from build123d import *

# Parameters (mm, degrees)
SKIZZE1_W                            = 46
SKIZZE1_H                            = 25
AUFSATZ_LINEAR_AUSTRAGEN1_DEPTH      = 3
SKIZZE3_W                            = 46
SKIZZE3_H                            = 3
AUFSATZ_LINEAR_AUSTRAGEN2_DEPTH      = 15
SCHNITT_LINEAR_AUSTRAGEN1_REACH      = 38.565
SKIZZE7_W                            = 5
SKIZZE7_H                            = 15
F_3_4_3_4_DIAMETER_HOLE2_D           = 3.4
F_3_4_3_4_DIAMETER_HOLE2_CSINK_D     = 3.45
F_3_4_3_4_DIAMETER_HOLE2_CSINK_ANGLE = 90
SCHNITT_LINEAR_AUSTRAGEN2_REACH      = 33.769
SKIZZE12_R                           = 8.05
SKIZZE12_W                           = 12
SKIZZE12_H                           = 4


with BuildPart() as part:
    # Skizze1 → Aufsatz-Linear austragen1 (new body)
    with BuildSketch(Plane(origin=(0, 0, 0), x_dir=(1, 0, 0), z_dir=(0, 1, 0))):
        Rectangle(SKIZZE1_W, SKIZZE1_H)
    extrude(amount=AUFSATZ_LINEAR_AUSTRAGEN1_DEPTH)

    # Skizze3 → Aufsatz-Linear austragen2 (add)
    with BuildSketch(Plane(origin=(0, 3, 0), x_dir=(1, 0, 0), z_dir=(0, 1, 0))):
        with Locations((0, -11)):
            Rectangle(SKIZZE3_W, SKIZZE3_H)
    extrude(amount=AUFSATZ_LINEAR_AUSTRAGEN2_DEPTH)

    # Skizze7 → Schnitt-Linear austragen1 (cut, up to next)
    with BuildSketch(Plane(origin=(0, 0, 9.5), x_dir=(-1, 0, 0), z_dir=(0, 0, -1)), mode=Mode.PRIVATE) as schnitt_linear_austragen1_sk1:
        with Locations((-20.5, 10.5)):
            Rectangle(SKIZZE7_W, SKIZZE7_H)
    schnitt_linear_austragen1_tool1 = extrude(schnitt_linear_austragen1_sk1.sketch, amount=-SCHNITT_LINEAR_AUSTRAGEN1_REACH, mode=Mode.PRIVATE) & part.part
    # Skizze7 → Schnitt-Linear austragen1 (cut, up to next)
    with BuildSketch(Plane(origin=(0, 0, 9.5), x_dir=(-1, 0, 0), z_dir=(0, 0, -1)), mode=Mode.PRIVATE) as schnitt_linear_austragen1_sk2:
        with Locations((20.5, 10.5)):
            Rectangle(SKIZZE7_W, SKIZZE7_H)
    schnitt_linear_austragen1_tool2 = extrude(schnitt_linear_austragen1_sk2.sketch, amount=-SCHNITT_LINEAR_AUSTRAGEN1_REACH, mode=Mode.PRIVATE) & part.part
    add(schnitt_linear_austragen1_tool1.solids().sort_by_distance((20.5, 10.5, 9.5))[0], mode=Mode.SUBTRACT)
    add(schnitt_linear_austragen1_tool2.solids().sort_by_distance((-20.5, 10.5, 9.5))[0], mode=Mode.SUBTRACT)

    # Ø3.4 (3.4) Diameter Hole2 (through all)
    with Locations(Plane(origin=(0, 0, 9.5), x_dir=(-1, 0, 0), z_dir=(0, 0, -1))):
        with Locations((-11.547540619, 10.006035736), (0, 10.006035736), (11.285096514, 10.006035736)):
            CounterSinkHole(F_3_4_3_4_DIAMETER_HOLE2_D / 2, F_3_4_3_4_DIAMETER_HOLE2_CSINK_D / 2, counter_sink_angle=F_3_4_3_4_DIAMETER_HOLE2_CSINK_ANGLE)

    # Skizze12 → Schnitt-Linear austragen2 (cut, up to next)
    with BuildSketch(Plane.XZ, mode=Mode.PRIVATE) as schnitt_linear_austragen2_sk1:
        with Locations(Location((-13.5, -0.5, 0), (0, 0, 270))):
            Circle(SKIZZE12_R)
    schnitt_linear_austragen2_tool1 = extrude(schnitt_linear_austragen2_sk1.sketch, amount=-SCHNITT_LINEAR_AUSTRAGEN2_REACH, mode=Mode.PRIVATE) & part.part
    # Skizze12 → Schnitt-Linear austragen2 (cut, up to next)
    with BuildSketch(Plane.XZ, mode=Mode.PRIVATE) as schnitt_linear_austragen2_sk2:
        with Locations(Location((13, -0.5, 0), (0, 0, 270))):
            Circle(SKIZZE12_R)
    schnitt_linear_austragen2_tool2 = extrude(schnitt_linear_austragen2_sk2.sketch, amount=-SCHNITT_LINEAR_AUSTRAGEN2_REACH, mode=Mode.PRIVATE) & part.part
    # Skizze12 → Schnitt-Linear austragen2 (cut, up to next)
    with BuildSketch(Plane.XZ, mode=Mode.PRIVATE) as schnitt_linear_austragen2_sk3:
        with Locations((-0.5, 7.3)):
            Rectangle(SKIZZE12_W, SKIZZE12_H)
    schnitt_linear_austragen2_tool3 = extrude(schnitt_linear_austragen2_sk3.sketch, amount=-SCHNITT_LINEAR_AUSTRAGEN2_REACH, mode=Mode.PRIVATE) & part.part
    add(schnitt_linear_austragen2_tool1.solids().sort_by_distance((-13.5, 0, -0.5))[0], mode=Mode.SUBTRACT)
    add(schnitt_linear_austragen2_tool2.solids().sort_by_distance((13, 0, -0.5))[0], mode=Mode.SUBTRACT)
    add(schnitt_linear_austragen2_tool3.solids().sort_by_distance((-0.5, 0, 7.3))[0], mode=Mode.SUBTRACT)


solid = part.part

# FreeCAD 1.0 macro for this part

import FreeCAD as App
import Part
import Sketcher
from FreeCAD import Vector
Q = App.Units.Quantity

doc = App.newDocument("Part")
body = doc.addObject("PartDesign::Body", "Body")

sketch1 = body.newObject("Sketcher::SketchObject", "Sketch")
sketch1.AttachmentSupport = (doc.getObject("XZ_Plane"), [""])
sketch1.MapMode = "FlatFace"
sketch1.addGeometry(Part.LineSegment(Vector(-23, -12, 0), Vector(-23, 12, 0)), False)
sketch1.addGeometry(Part.LineSegment(Vector(-23, 12, 0), Vector(23, 12, 0)), False)
sketch1.addGeometry(Part.LineSegment(Vector(23, 12, 0), Vector(23, -12, 0)), False)
sketch1.addGeometry(Part.LineSegment(Vector(23, -12, 0), Vector(-23, -12, 0)), False)
sketch1.addConstraint(Sketcher.Constraint("Coincident", 0, 2, 1, 1))
sketch1.addConstraint(Sketcher.Constraint("Coincident", 1, 2, 2, 1))
sketch1.addConstraint(Sketcher.Constraint("Coincident", 2, 2, 3, 1))
sketch1.addConstraint(Sketcher.Constraint("Coincident", 3, 2, 0, 1))
sketch1.addConstraint(Sketcher.Constraint("Vertical", 0))
sketch1.addConstraint(Sketcher.Constraint("Horizontal", 1))
sketch1.addConstraint(Sketcher.Constraint("Vertical", 2))
sketch1.addConstraint(Sketcher.Constraint("Horizontal", 3))
sketch1.addConstraint(Sketcher.Constraint("Symmetric", 0, 2, 2, 2, -1, 1))
sketch1.addConstraint(Sketcher.Constraint("DistanceX", 1, 1, 1, 2, Q("46 mm")))
sketch1.addConstraint(Sketcher.Constraint("DistanceY", 0, 1, 0, 2, Q("25 mm")))
pad1 = body.newObject("PartDesign::Pad", "Pad")
pad1.Profile = sketch1
pad1.Length = 3
pad1.Reversed = True

sketch2 = body.newObject("Sketcher::SketchObject", "Sketch001")
sketch2.AttachmentSupport = (doc.getObject("XZ_Plane"), [""])
sketch2.MapMode = "FlatFace"
sketch2.AttachmentOffset = App.Placement(Vector(0, 0, -3), App.Rotation())
sketch2.addGeometry(Part.LineSegment(Vector(-23, 9.5, 0), Vector(-23, 12.5, 0)), False)
sketch2.addGeometry(Part.LineSegment(Vector(-23, 12.5, 0), Vector(23, 12.5, 0)), False)
sketch2.addGeometry(Part.LineSegment(Vector(23, 12.5, 0), Vector(23, 9.5, 0)), False)
sketch2.addGeometry(Part.LineSegment(Vector(23, 9.5, 0), Vector(-23, 9.5, 0)), False)
sketch2.addConstraint(Sketcher.Constraint("Coincident", 0, 2, 1, 1))
sketch2.addConstraint(Sketcher.Constraint("Coincident", 1, 2, 2, 1))
sketch2.addConstraint(Sketcher.Constraint("Coincident", 2, 2, 3, 1))
sketch2.addConstraint(Sketcher.Constraint("Coincident", 3, 2, 0, 1))
sketch2.addConstraint(Sketcher.Constraint("Vertical", 0))
sketch2.addConstraint(Sketcher.Constraint("Horizontal", 1))
sketch2.addConstraint(Sketcher.Constraint("Vertical", 2))
sketch2.addConstraint(Sketcher.Constraint("Horizontal", 3))
sketch2.addConstraint(Sketcher.Constraint("DistanceX", 1, 1, 1, 2, Q("46 mm")))
sketch2.addConstraint(Sketcher.Constraint("DistanceY", 0, 1, 0, 2, Q("3 mm")))
sketch2.addConstraint(Sketcher.Constraint("DistanceX", 0, 2, -1, 1, Q("23 mm")))
sketch2.addConstraint(Sketcher.Constraint("DistanceY", -1, 1, 0, 2, Q("12.5 mm")))
pad2 = body.newObject("PartDesign::Pad", "Pad001")
pad2.Profile = sketch2
pad2.Length = 15
pad2.Reversed = True

sketch3 = body.newObject("Sketcher::SketchObject", "Sketch002")
sketch3.AttachmentSupport = (doc.getObject("XY_Plane"), [""])
sketch3.MapMode = "FlatFace"
sketch3.AttachmentOffset = App.Placement(Vector(0, 0, 9.5), App.Rotation())
sketch3.addGeometry(Part.LineSegment(Vector(23, 18, 0), Vector(23, 3, 0)), False)
sketch3.addGeometry(Part.LineSegment(Vector(23, 3, 0), Vector(18, 3, 0)), False)
sketch3.addGeometry(Part.LineSegment(Vector(18, 3, 0), Vector(18, 18, 0)), False)
sketch3.addGeometry(Part.LineSegment(Vector(18, 18, 0), Vector(23, 18, 0)), False)
sketch3.addConstraint(Sketcher.Constraint("Coincident", 0, 2, 1, 1))
sketch3.addConstraint(Sketcher.Constraint("Coincident", 1, 2, 2, 1))
sketch3.addConstraint(Sketcher.Constraint("Coincident", 2, 2, 3, 1))
sketch3.addConstraint(Sketcher.Constraint("Coincident", 3, 2, 0, 1))
sketch3.addConstraint(Sketcher.Constraint("Vertical", 0))
sketch3.addConstraint(Sketcher.Constraint("Horizontal", 1))
sketch3.addConstraint(Sketcher.Constraint("Vertical", 2))
sketch3.addConstraint(Sketcher.Constraint("Horizontal", 3))
sketch3.addConstraint(Sketcher.Constraint("DistanceX", 1, 2, 1, 1, Q("5 mm")))
sketch3.addConstraint(Sketcher.Constraint("DistanceY", 0, 2, 0, 1, Q("15 mm")))
sketch3.addConstraint(Sketcher.Constraint("DistanceX", -1, 1, 0, 2, Q("23 mm")))
sketch3.addConstraint(Sketcher.Constraint("DistanceY", -1, 1, 0, 2, Q("3 mm")))
pocket1 = body.newObject("PartDesign::Pocket", "Pocket")
pocket1.Profile = sketch3
pocket1.Type = "UpToFirst"
pocket1.Reversed = True

sketch4 = body.newObject("Sketcher::SketchObject", "Sketch003")
sketch4.AttachmentSupport = (doc.getObject("XY_Plane"), [""])
sketch4.MapMode = "FlatFace"
sketch4.AttachmentOffset = App.Placement(Vector(0, 0, 9.5), App.Rotation())
sketch4.addGeometry(Part.LineSegment(Vector(-18, 18, 0), Vector(-18, 3, 0)), False)
sketch4.addGeometry(Part.LineSegment(Vector(-18, 3, 0), Vector(-23, 3, 0)), False)
sketch4.addGeometry(Part.LineSegment(Vector(-23, 3, 0), Vector(-23, 18, 0)), False)
sketch4.addGeometry(Part.LineSegment(Vector(-23, 18, 0), Vector(-18, 18, 0)), False)
sketch4.addConstraint(Sketcher.Constraint("Coincident", 0, 2, 1, 1))
sketch4.addConstraint(Sketcher.Constraint("Coincident", 1, 2, 2, 1))
sketch4.addConstraint(Sketcher.Constraint("Coincident", 2, 2, 3, 1))
sketch4.addConstraint(Sketcher.Constraint("Coincident", 3, 2, 0, 1))
sketch4.addConstraint(Sketcher.Constraint("Vertical", 0))
sketch4.addConstraint(Sketcher.Constraint("Horizontal", 1))
sketch4.addConstraint(Sketcher.Constraint("Vertical", 2))
sketch4.addConstraint(Sketcher.Constraint("Horizontal", 3))
sketch4.addConstraint(Sketcher.Constraint("DistanceX", 1, 2, 1, 1, Q("5 mm")))
sketch4.addConstraint(Sketcher.Constraint("DistanceY", 0, 2, 0, 1, Q("15 mm")))
sketch4.addConstraint(Sketcher.Constraint("DistanceX", 0, 2, -1, 1, Q("18 mm")))
sketch4.addConstraint(Sketcher.Constraint("DistanceY", -1, 1, 0, 2, Q("3 mm")))
pocket2 = body.newObject("PartDesign::Pocket", "Pocket001")
pocket2.Profile = sketch4
pocket2.Type = "UpToFirst"
pocket2.Reversed = True

sketch5 = body.newObject("Sketcher::SketchObject", "Sketch004")
sketch5.AttachmentSupport = (doc.getObject("XY_Plane"), [""])
sketch5.MapMode = "FlatFace"
sketch5.AttachmentOffset = App.Placement(Vector(0, 0, 9.5), App.Rotation())
sketch5.addGeometry(Part.Circle(Vector(11.5, 10, 0), Vector(0, 0, 1), 1.7), False)
sketch5.addGeometry(Part.Circle(Vector(0, 10, 0), Vector(0, 0, 1), 1.7), False)
sketch5.addGeometry(Part.Circle(Vector(-11.3, 10, 0), Vector(0, 0, 1), 1.7), False)
sketch5.addConstraint(Sketcher.Constraint("Equal", 0, 1))
sketch5.addConstraint(Sketcher.Constraint("Equal", 1, 2))
sketch5.addConstraint(Sketcher.Constraint("PointOnObject", 1, 3, -2))
sketch5.addConstraint(Sketcher.Constraint("Horizontal", 0, 3, 1, 3))
sketch5.addConstraint(Sketcher.Constraint("Horizontal", 1, 3, 2, 3))
sketch5.addConstraint(Sketcher.Constraint("Diameter", 0, Q("3.4 mm")))
sketch5.addConstraint(Sketcher.Constraint("DistanceX", -1, 1, 0, 3, Q("11.547541 mm")))
sketch5.addConstraint(Sketcher.Constraint("DistanceY", -1, 1, 0, 3, Q("10.006036 mm")))
sketch5.addConstraint(Sketcher.Constraint("DistanceX", 2, 3, -1, 1, Q("11.285097 mm")))
doc.recompute()
hole = body.newObject("PartDesign::Hole", "Hole")
hole.Profile = sketch5
hole.ThreadType = "None"
hole.Diameter = 3.4
hole.DepthType = "ThroughAll"
hole.HoleCutType = "Countersink"
hole.HoleCutDiameter = 3.45
hole.HoleCutCountersinkAngle = 90
hole.Reversed = True

sketch6 = body.newObject("Sketcher::SketchObject", "Sketch005")
sketch6.AttachmentSupport = (doc.getObject("XZ_Plane"), [""])
sketch6.MapMode = "FlatFace"
sketch6.addGeometry(Part.Circle(Vector(-14, 0, 0), Vector(0, 0, 1), 8), False)
sketch6.addConstraint(Sketcher.Constraint("Diameter", 0, Q("16.1 mm")))
sketch6.addConstraint(Sketcher.Constraint("DistanceX", 0, 3, -1, 1, Q("13.5 mm")))
sketch6.addConstraint(Sketcher.Constraint("DistanceY", 0, 3, -1, 1, Q("0.5 mm")))
pocket3 = body.newObject("PartDesign::Pocket", "Pocket002")
pocket3.Profile = sketch6
pocket3.Type = "UpToFirst"

sketch7 = body.newObject("Sketcher::SketchObject", "Sketch006")
sketch7.AttachmentSupport = (doc.getObject("XZ_Plane"), [""])
sketch7.MapMode = "FlatFace"
sketch7.addGeometry(Part.Circle(Vector(13, 0, 0), Vector(0, 0, 1), 8), False)
sketch7.addConstraint(Sketcher.Constraint("Diameter", 0, Q("16.1 mm")))
sketch7.addConstraint(Sketcher.Constraint("DistanceX", -1, 1, 0, 3, Q("13 mm")))
sketch7.addConstraint(Sketcher.Constraint("DistanceY", 0, 3, -1, 1, Q("0.5 mm")))
pocket4 = body.newObject("PartDesign::Pocket", "Pocket003")
pocket4.Profile = sketch7
pocket4.Type = "UpToFirst"

sketch8 = body.newObject("Sketcher::SketchObject", "Sketch007")
sketch8.AttachmentSupport = (doc.getObject("XZ_Plane"), [""])
sketch8.MapMode = "FlatFace"
sketch8.addGeometry(Part.LineSegment(Vector(-6.5, 9.3, 0), Vector(-6.5, 5.3, 0)), False)
sketch8.addGeometry(Part.LineSegment(Vector(-6.5, 5.3, 0), Vector(5.5, 5.3, 0)), False)
sketch8.addGeometry(Part.LineSegment(Vector(5.5, 5.3, 0), Vector(5.5, 9.3, 0)), False)
sketch8.addGeometry(Part.LineSegment(Vector(5.5, 9.3, 0), Vector(-6.5, 9.3, 0)), False)
sketch8.addConstraint(Sketcher.Constraint("Coincident", 0, 2, 1, 1))
sketch8.addConstraint(Sketcher.Constraint("Coincident", 1, 2, 2, 1))
sketch8.addConstraint(Sketcher.Constraint("Coincident", 2, 2, 3, 1))
sketch8.addConstraint(Sketcher.Constraint("Coincident", 3, 2, 0, 1))
sketch8.addConstraint(Sketcher.Constraint("Vertical", 0))
sketch8.addConstraint(Sketcher.Constraint("Horizontal", 1))
sketch8.addConstraint(Sketcher.Constraint("Vertical", 2))
sketch8.addConstraint(Sketcher.Constraint("Horizontal", 3))
sketch8.addConstraint(Sketcher.Constraint("DistanceX", 1, 1, 1, 2, Q("12 mm")))
sketch8.addConstraint(Sketcher.Constraint("DistanceY", 0, 2, 0, 1, Q("4 mm")))
sketch8.addConstraint(Sketcher.Constraint("DistanceX", 0, 2, -1, 1, Q("6.5 mm")))
sketch8.addConstraint(Sketcher.Constraint("DistanceY", -1, 1, 0, 2, Q("5.3 mm")))
pocket5 = body.newObject("PartDesign::Pocket", "Pocket004")
pocket5.Profile = sketch8
pocket5.Type = "UpToFirst"

doc.recompute()
